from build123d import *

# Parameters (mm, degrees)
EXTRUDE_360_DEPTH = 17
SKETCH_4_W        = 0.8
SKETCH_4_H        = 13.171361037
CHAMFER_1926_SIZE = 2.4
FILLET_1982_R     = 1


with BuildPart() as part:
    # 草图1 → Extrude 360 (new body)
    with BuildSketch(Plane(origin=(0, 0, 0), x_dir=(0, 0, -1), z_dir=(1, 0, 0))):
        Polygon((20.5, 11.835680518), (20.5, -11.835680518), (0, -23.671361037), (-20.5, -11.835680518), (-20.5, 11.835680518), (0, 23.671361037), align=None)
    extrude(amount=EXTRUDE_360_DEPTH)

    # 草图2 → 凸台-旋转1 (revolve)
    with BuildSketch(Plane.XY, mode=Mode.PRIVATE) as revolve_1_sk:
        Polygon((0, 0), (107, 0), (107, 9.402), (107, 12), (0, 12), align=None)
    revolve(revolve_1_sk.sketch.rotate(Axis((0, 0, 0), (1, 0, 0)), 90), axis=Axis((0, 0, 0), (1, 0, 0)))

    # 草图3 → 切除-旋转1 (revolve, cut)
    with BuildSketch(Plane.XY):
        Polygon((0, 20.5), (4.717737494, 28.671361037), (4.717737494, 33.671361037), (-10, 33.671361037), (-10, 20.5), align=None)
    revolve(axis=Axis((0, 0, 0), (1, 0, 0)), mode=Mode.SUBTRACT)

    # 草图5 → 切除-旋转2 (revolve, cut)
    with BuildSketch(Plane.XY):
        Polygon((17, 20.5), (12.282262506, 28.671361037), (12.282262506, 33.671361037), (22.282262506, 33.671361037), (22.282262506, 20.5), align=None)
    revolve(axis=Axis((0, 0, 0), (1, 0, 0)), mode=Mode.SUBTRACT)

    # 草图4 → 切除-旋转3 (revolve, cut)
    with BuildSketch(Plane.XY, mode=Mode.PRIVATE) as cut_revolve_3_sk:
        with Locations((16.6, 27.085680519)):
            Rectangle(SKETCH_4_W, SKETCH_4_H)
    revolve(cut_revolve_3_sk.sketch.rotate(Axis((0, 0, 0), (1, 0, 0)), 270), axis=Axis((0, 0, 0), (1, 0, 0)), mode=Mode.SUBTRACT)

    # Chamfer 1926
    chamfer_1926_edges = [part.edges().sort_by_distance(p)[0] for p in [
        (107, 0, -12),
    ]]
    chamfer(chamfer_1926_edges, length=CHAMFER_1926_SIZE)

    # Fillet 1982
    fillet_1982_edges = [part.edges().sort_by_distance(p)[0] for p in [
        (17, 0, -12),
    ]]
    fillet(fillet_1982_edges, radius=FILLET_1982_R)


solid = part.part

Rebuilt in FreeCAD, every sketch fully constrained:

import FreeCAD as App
import Part
import Sketcher
Q = App.Units.Quantity


def edges_at(feature, points):
    """Names of the edges that pass closest to the given points."""
    edges = feature.Shape.Edges
    near = lambda p: min(range(len(edges)), key=lambda i: edges[i].distToShape(Part.Vertex(*p))[0])
    return sorted({f"Edge{near(p) + 1}" for p in points})

doc = App.newDocument("Part")
params = doc.addObject("Spreadsheet::Sheet", "Params")
for row, (alias, value) in enumerate([
    ("pad1_length", "17 mm"),
    ("sketch2_width", "107 mm"),
    ("sketch2_height", "12 mm"),
    ("revolution_angle", "360 deg"),
    ("sketch3_width", "10 mm"),
    ("sketch3_height", "5 mm"),
    ("groove_angle", "360 deg"),
    ("sketch4_width", "10 mm"),
    ("sketch4_height", "5 mm"),
    ("groove2_angle", "360 deg"),
    ("sketch5_width", "0.8 mm"),
    ("groove3_angle", "360 deg"),
    ("chamfer_size", "2.4 mm"),
    ("fillet_radius", "1 mm"),
], start=1):
    params.set(f"A{row}", alias)
    params.set(f"B{row}", "=" + value)
    params.setAlias(f"B{row}", alias)

body = doc.addObject("PartDesign::Body", "Body")

sketch1 = body.newObject("Sketcher::SketchObject", "Sketch")
sketch1.AttachmentSupport = (doc.getObject("YZ_Plane"), [""])
sketch1.MapMode = "FlatFace"
sketch1.addGeometry([
    Part.LineSegment(App.Vector(-12, -20, 0), App.Vector(12, -20, 0)),
    Part.LineSegment(App.Vector(12, -20, 0), App.Vector(24, 0, 0)),
    Part.LineSegment(App.Vector(24, 0, 0), App.Vector(12, 20, 0)),
    Part.LineSegment(App.Vector(12, 20, 0), App.Vector(-12, 20, 0)),
    Part.LineSegment(App.Vector(-12, 20, 0), App.Vector(-24, 0, 0)),
    Part.LineSegment(App.Vector(-24, 0, 0), App.Vector(-12, -20, 0)),
], False)
sketch1.addConstraint([
    Sketcher.Constraint("Coincident", 0, 2, 1, 1),
    Sketcher.Constraint("Coincident", 1, 2, 2, 1),
    Sketcher.Constraint("Coincident", 2, 2, 3, 1),
    Sketcher.Constraint("Coincident", 3, 2, 4, 1),
    Sketcher.Constraint("Coincident", 4, 2, 5, 1),
    Sketcher.Constraint("Coincident", 5, 2, 0, 1),
    Sketcher.Constraint("Horizontal", 0),
    Sketcher.Constraint("Horizontal", 3),
    Sketcher.Constraint("Symmetric", 0, 2, 3, 2, -1, 1),
    Sketcher.Constraint("Symmetric", 1, 2, 4, 2, -1, 1),
    Sketcher.Constraint("PointOnObject", 1, 2, -1),
    Sketcher.Constraint("Parallel", 2, 5),
    Sketcher.Constraint("Vertical", 0, 2, 2, 2),
    Sketcher.Constraint("Angle", 1, Q("60 deg")),
    Sketcher.Constraint("DistanceY", 0, 2, 2, 2, Q("41 mm")),
    Sketcher.Constraint("DistanceX", 0, 1, 0, 2, Q("23.671361 mm")),
])
pad1 = body.newObject("PartDesign::Pad", "Pad")
pad1.Profile = sketch1
pad1.setExpression("Length", "Params.pad1_length")

sketch2 = body.newObject("Sketcher::SketchObject", "Sketch001")
sketch2.AttachmentSupport = (doc.getObject("XY_Plane"), [""])
sketch2.MapMode = "FlatFace"
sketch2.addGeometry([
    Part.LineSegment(App.Vector(0, 0, 0), App.Vector(107, 0, 0)),
    Part.LineSegment(App.Vector(107, 0, 0), App.Vector(107, 12, 0)),
    Part.LineSegment(App.Vector(107, 12, 0), App.Vector(0, 12, 0)),
    Part.LineSegment(App.Vector(0, 12, 0), App.Vector(0, 0, 0)),
], False)
sketch2.addConstraint([
    Sketcher.Constraint("Coincident", 0, 2, 1, 1),
    Sketcher.Constraint("Coincident", 1, 2, 2, 1),
    Sketcher.Constraint("Coincident", 2, 2, 3, 1),
    Sketcher.Constraint("Coincident", 3, 2, 0, 1),
    Sketcher.Constraint("Horizontal", 0),
    Sketcher.Constraint("Vertical", 1),
    Sketcher.Constraint("Horizontal", 2),
    Sketcher.Constraint("Vertical", 3),
    Sketcher.Constraint("Coincident", 3, 2, -1, 1),
    Sketcher.Constraint("DistanceX", 0, 1, 0, 2, Q("107 mm")),
    Sketcher.Constraint("DistanceY", 1, 1, 1, 2, Q("12 mm")),
])
sketch2.setExpression("Constraints[9]", "Params.sketch2_width")
sketch2.setExpression("Constraints[10]", "Params.sketch2_height")
revolution = body.newObject("PartDesign::Revolution", "Revolution")
revolution.Profile = sketch2
revolution.ReferenceAxis = (sketch2, ["H_Axis"])
revolution.setExpression("Angle", "Params.revolution_angle")

sketch3 = body.newObject("Sketcher::SketchObject", "Sketch002")
sketch3.AttachmentSupport = (doc.getObject("XY_Plane"), [""])
sketch3.MapMode = "FlatFace"
sketch3.addGeometry([
    Part.LineSegment(App.Vector(0, 20.5, 0), App.Vector(4.7, 28.7, 0)),
    Part.LineSegment(App.Vector(4.7, 28.7, 0), App.Vector(4.7, 33.7, 0)),
    Part.LineSegment(App.Vector(4.7, 33.7, 0), App.Vector(-10, 33.7, 0)),
    Part.LineSegment(App.Vector(-10, 33.7, 0), App.Vector(-10, 20.5, 0)),
    Part.LineSegment(App.Vector(-10, 20.5, 0), App.Vector(0, 20.5, 0)),
], False)
sketch3.addConstraint([
    Sketcher.Constraint("Coincident", 0, 2, 1, 1),
    Sketcher.Constraint("Coincident", 1, 2, 2, 1),
    Sketcher.Constraint("Coincident", 2, 2, 3, 1),
    Sketcher.Constraint("Coincident", 3, 2, 4, 1),
    Sketcher.Constraint("Coincident", 4, 2, 0, 1),
    Sketcher.Constraint("Vertical", 1),
    Sketcher.Constraint("Horizontal", 2),
    Sketcher.Constraint("Vertical", 3),
    Sketcher.Constraint("Horizontal", 4),
    Sketcher.Constraint("PointOnObject", 4, 2, -2),
    Sketcher.Constraint("DistanceX", 4, 1, 4, 2, Q("10 mm")),
    Sketcher.Constraint("DistanceY", 1, 1, 1, 2, Q("5 mm")),
    Sketcher.Constraint("Angle", 0, Q("60 deg")),
    Sketcher.Constraint("DistanceY", -1, 1, 3, 2, Q("20.5 mm")),
    Sketcher.Constraint("DistanceY", 3, 2, 3, 1, Q("13.171361 mm")),
])
sketch3.setExpression("Constraints[10]", "Params.sketch3_width")
sketch3.setExpression("Constraints[11]", "Params.sketch3_height")
groove = body.newObject("PartDesign::Groove", "Groove")
groove.Profile = sketch3
groove.ReferenceAxis = (sketch3, ["H_Axis"])
groove.setExpression("Angle", "Params.groove_angle")

sketch4 = body.newObject("Sketcher::SketchObject", "Sketch003")
sketch4.AttachmentSupport = (doc.getObject("XY_Plane"), [""])
sketch4.MapMode = "FlatFace"
sketch4.addGeometry([
    Part.LineSegment(App.Vector(12.3, 28.7, 0), App.Vector(17, 20.5, 0)),
    Part.LineSegment(App.Vector(17, 20.5, 0), App.Vector(22.3, 20.5, 0)),
    Part.LineSegment(App.Vector(22.3, 20.5, 0), App.Vector(22.3, 33.7, 0)),
    Part.LineSegment(App.Vector(22.3, 33.7, 0), App.Vector(12.3, 33.7, 0)),
    Part.LineSegment(App.Vector(12.3, 33.7, 0), App.Vector(12.3, 28.7, 0)),
], False)
sketch4.addConstraint([
    Sketcher.Constraint("Coincident", 0, 2, 1, 1),
    Sketcher.Constraint("Coincident", 1, 2, 2, 1),
    Sketcher.Constraint("Coincident", 2, 2, 3, 1),
    Sketcher.Constraint("Coincident", 3, 2, 4, 1),
    Sketcher.Constraint("Coincident", 4, 2, 0, 1),
    Sketcher.Constraint("Horizontal", 1),
    Sketcher.Constraint("Vertical", 2),
    Sketcher.Constraint("Horizontal", 3),
    Sketcher.Constraint("Vertical", 4),
    Sketcher.Constraint("DistanceX", 3, 2, 3, 1, Q("10 mm")),
    Sketcher.Constraint("DistanceY", 4, 2, 4, 1, Q("5 mm")),
    Sketcher.Constraint("Angle", 0, Q("-60 deg")),
    Sketcher.Constraint("DistanceX", -1, 1, 0, 2, Q("17 mm")),
    Sketcher.Constraint("DistanceY", -1, 1, 0, 2, Q("20.5 mm")),
    Sketcher.Constraint("DistanceY", 2, 1, 2, 2, Q("13.171361 mm")),
])
sketch4.setExpression("Constraints[9]", "Params.sketch4_width")
sketch4.setExpression("Constraints[10]", "Params.sketch4_height")
groove2 = body.newObject("PartDesign::Groove", "Groove001")
groove2.Profile = sketch4
groove2.ReferenceAxis = (sketch4, ["H_Axis"])
groove2.setExpression("Angle", "Params.groove2_angle")

sketch5 = body.newObject("Sketcher::SketchObject", "Sketch004")
sketch5.AttachmentSupport = (doc.getObject("XY_Plane"), [""])
sketch5.MapMode = "FlatFace"
sketch5.addGeometry([
    Part.LineSegment(App.Vector(16.2, 33.7, 0), App.Vector(16.2, 20.5, 0)),
    Part.LineSegment(App.Vector(16.2, 20.5, 0), App.Vector(17, 20.5, 0)),
    Part.LineSegment(App.Vector(17, 20.5, 0), App.Vector(17, 33.7, 0)),
    Part.LineSegment(App.Vector(17, 33.7, 0), App.Vector(16.2, 33.7, 0)),
], False)
sketch5.addConstraint([
    Sketcher.Constraint("Coincident", 0, 2, 1, 1),
    Sketcher.Constraint("Coincident", 1, 2, 2, 1),
    Sketcher.Constraint("Coincident", 2, 2, 3, 1),
    Sketcher.Constraint("Coincident", 3, 2, 0, 1),
    Sketcher.Constraint("Vertical", 0),
    Sketcher.Constraint("Horizontal", 1),
    Sketcher.Constraint("Vertical", 2),
    Sketcher.Constraint("Horizontal", 3),
    Sketcher.Constraint("DistanceX", 1, 1, 1, 2, Q("0.8 mm")),
    Sketcher.Constraint("DistanceX", -1, 1, 1, 2, Q("17 mm")),
    Sketcher.Constraint("DistanceY", -1, 1, 0, 2, Q("20.5 mm")),
    Sketcher.Constraint("DistanceY", 0, 2, 0, 1, Q("13.171361 mm")),
])
sketch5.setExpression("Constraints[8]", "Params.sketch5_width")
groove3 = body.newObject("PartDesign::Groove", "Groove002")
groove3.Profile = sketch5
groove3.ReferenceAxis = (sketch5, ["H_Axis"])
groove3.setExpression("Angle", "Params.groove3_angle")
doc.recompute()

chamfer = body.newObject("PartDesign::Chamfer", "Chamfer")
chamfer.Base = (groove3, edges_at(groove3, [(107, 0, -12)]))
chamfer.setExpression("Size", "Params.chamfer_size")
doc.recompute()

fillet = body.newObject("PartDesign::Fillet", "Fillet")
fillet.Base = (chamfer, edges_at(chamfer, [(17, 0, -12)]))
fillet.setExpression("Radius", "Params.fillet_radius")

doc.recompute()
